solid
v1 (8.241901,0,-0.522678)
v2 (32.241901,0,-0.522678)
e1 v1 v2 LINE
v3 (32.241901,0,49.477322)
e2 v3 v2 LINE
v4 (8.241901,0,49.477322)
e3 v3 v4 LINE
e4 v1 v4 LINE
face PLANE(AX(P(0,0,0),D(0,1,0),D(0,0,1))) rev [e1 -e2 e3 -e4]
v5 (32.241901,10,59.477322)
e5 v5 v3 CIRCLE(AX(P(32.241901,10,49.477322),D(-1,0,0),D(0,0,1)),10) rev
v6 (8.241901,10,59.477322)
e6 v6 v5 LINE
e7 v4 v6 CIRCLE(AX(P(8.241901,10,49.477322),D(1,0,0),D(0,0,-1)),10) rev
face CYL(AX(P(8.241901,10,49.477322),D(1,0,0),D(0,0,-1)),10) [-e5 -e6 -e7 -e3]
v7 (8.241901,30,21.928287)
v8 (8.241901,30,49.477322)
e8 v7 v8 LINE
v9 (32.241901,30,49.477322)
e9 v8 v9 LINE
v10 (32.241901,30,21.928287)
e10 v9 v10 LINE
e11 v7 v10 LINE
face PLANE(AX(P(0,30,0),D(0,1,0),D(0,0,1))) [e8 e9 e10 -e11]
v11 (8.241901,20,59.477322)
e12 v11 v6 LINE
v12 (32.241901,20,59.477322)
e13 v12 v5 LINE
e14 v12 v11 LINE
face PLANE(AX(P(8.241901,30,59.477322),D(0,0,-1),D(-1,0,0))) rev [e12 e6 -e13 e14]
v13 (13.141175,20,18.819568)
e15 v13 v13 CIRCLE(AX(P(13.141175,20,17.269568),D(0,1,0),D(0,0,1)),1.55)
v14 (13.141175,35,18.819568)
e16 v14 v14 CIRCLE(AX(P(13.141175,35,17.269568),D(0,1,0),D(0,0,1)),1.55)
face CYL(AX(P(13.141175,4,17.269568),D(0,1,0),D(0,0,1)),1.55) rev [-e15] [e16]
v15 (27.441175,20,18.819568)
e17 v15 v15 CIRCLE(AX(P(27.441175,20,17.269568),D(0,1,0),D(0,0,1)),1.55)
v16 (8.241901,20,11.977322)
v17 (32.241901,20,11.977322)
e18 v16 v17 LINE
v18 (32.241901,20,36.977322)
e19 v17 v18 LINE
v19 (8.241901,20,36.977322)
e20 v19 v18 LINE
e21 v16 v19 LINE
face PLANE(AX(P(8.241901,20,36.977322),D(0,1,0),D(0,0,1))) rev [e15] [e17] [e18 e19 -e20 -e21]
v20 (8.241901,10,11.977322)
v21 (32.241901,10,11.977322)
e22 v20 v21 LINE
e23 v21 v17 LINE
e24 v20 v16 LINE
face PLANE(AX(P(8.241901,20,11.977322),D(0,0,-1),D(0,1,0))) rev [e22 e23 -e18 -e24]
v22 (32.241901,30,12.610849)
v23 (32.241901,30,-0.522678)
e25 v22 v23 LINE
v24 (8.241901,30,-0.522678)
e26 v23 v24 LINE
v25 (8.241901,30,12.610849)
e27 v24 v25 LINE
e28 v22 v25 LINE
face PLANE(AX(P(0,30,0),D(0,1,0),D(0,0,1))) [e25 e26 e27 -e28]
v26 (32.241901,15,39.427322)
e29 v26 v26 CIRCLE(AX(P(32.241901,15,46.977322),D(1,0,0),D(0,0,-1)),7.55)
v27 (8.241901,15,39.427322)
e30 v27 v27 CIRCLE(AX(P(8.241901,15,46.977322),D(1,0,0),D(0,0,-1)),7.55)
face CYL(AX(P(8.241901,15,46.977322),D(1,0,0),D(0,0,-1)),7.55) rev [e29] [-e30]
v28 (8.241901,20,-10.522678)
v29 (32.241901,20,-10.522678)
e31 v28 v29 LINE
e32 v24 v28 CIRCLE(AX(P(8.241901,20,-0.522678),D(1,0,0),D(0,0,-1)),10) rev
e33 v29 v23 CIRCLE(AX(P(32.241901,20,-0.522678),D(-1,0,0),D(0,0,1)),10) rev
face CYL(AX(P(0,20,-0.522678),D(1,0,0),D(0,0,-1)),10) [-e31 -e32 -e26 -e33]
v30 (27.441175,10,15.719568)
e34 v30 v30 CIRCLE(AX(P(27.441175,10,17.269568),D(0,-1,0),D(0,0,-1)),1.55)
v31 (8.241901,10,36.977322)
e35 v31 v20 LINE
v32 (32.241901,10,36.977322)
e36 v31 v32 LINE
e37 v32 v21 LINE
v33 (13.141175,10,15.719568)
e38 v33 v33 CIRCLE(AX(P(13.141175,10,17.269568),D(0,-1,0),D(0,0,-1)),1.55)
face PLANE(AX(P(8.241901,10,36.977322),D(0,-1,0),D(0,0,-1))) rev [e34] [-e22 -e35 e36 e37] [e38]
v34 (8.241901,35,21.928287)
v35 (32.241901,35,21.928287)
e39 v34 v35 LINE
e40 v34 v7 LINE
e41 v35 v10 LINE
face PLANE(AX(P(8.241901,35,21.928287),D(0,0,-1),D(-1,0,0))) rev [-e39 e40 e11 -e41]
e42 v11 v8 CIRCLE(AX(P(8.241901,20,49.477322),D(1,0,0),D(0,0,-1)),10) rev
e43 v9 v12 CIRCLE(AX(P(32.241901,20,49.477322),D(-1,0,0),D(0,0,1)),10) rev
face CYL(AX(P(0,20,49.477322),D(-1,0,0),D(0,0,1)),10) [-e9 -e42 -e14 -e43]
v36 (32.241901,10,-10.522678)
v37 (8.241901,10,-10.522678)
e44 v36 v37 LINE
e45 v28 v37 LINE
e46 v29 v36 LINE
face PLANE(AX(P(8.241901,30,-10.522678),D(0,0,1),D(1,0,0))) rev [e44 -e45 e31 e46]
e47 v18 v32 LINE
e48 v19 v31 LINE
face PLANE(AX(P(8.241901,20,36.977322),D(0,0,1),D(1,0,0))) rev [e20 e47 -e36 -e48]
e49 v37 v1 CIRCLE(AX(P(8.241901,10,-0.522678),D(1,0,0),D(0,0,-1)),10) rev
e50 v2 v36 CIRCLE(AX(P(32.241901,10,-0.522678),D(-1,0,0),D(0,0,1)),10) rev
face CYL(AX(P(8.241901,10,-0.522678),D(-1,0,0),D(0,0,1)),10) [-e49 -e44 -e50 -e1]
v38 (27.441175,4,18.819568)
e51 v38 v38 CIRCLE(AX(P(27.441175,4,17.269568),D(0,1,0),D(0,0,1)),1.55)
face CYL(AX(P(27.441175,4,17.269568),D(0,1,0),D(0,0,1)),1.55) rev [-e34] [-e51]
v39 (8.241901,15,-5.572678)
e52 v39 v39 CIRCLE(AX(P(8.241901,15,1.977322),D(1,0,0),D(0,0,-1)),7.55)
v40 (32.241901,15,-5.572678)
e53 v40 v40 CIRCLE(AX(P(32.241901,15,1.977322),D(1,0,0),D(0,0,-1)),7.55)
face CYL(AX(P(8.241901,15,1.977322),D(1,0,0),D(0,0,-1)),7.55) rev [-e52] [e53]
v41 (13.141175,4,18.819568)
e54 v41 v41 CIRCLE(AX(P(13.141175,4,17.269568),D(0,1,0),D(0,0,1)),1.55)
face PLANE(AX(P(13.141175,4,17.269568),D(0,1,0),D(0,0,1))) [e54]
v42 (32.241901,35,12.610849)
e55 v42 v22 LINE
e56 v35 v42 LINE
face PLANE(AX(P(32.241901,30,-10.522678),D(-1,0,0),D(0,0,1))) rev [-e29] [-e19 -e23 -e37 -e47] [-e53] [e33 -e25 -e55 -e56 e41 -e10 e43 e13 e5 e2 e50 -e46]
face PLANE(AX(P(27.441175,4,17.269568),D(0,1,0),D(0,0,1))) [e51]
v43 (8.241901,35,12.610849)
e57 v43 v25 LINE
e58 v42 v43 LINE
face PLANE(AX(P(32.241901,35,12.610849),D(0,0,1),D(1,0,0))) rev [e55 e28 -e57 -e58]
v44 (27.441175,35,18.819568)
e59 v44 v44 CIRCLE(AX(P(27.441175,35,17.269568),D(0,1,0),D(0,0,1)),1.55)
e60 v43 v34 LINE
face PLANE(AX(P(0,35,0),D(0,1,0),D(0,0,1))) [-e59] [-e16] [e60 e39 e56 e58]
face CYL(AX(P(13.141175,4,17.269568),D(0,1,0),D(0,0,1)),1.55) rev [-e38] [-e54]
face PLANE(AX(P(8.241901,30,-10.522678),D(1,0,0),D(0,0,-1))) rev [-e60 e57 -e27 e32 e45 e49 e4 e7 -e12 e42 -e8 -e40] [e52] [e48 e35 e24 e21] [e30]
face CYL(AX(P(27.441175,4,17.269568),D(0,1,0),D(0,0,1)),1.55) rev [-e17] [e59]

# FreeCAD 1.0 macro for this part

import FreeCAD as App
import Part
import Sketcher

V = App.Vector


def edges_at(feature, points):
    """Names of the edges that pass closest to the given points."""
    edges = feature.Shape.Edges
    near = lambda p: min(range(len(edges)), key=lambda i: edges[i].distToShape(Part.Vertex(*p))[0])
    return sorted({f"Edge{near(p) + 1}" for p in points})


def add_polygon(sketch, points):
    """Adds a closed chain of lines whose ends are joined by coincident constraints."""
    first, n = sketch.GeometryCount, len(points)
    for a, b in zip(points, points[1:] + points[:1]):
        sketch.addGeometry(Part.LineSegment(App.Vector(*a, 0), App.Vector(*b, 0)), False)
    for i in range(n):
        sketch.addConstraint(Sketcher.Constraint("Coincident", first + i, 2, first + (i + 1) % n, 1))

doc = App.newDocument("Part")
body = doc.addObject("PartDesign::Body", "Body")

# Sketch on XZ plane
sketch1 = body.newObject("Sketcher::SketchObject", "Sketch")
sketch1.AttachmentSupport = (doc.getObject("XZ_Plane"), [""])
sketch1.MapMode = "FlatFace"
add_polygon(sketch1, [(8, -11), (8, 59), (32, 59), (32, -11)])  # lines 0-3
sketch1.addConstraint(Sketcher.Constraint("Vertical", 0))
sketch1.addConstraint(Sketcher.Constraint("Horizontal", 1))
sketch1.addConstraint(Sketcher.Constraint("Vertical", 2))
sketch1.addConstraint(Sketcher.Constraint("Horizontal", 3))
sketch1.addConstraint(Sketcher.Constraint("DistanceX", 1, 1, 1, 2, 24.0))
sketch1.addConstraint(Sketcher.Constraint("DistanceY", 0, 1, 0, 2, 70.0))
sketch1.addConstraint(Sketcher.Constraint("DistanceX", -1, 1, 0, 2, 8.241901))
sketch1.addConstraint(Sketcher.Constraint("DistanceY", -1, 1, 0, 2, 59.477322))
pad1 = body.newObject("PartDesign::Pad", "Pad")
pad1.Profile = sketch1
pad1.Length = 30
pad1.Reversed = True

# Sketch on YZ plane
sketch2 = body.newObject("Sketcher::SketchObject", "Sketch001")
sketch2.AttachmentSupport = (doc.getObject("YZ_Plane"), [""])
sketch2.MapMode = "FlatFace"
sketch2.AttachmentOffset = App.Placement(V(0, 0, 32.241901), App.Rotation())
sketch2.addGeometry(Part.Circle(V(15, 47, 0), V(0, 0, 1), 8), False)
sketch2.addGeometry(Part.Circle(V(15, 2, 0), V(0, 0, 1), 8), False)
sketch2.addConstraint(Sketcher.Constraint("Equal", 0, 1))
sketch2.addConstraint(Sketcher.Constraint("Vertical", 0, 3, 1, 3))
sketch2.addConstraint(Sketcher.Constraint("Diameter", 0, 15.1))
sketch2.addConstraint(Sketcher.Constraint("DistanceX", -1, 1, 0, 3, 15.0))
sketch2.addConstraint(Sketcher.Constraint("DistanceY", 1, 3, 0, 3, 45.0))
sketch2.addConstraint(Sketcher.Constraint("DistanceY", -1, 1, 0, 3, 46.977322))
pocket1 = body.newObject("PartDesign::Pocket", "Pocket")
pocket1.Profile = sketch2
pocket1.Type = "ThroughAll"

# Sketch on YZ plane
sketch3 = body.newObject("Sketcher::SketchObject", "Sketch002")
sketch3.AttachmentSupport = (doc.getObject("YZ_Plane"), [""])
sketch3.MapMode = "FlatFace"
sketch3.AttachmentOffset = App.Placement(V(0, 0, 32.241901), App.Rotation())
add_polygon(sketch3, [(20, 37), (10, 37), (10, 12), (20, 12)])  # lines 0-3
sketch3.addConstraint(Sketcher.Constraint("Horizontal", 0))
sketch3.addConstraint(Sketcher.Constraint("Vertical", 1))
sketch3.addConstraint(Sketcher.Constraint("Horizontal", 2))
sketch3.addConstraint(Sketcher.Constraint("Vertical", 3))
sketch3.addConstraint(Sketcher.Constraint("DistanceX", 0, 2, 0, 1, 10.0))
sketch3.addConstraint(Sketcher.Constraint("DistanceY", 1, 2, 1, 1, 25.0))
sketch3.addConstraint(Sketcher.Constraint("DistanceX", -1, 1, 0, 2, 10.0))
sketch3.addConstraint(Sketcher.Constraint("DistanceY", -1, 1, 0, 2, 36.977322))
pocket2 = body.newObject("PartDesign::Pocket", "Pocket001")
pocket2.Profile = sketch3
pocket2.Type = "ThroughAll"

# Sketch on XZ plane
sketch4 = body.newObject("Sketcher::SketchObject", "Sketch003")
sketch4.AttachmentSupport = (doc.getObject("XZ_Plane"), [""])
sketch4.MapMode = "FlatFace"
sketch4.AttachmentOffset = App.Placement(V(0, 0, -30), App.Rotation())
add_polygon(sketch4, [(8, 13), (8, 22), (32, 22), (32, 13)])  # lines 0-3
sketch4.addConstraint(Sketcher.Constraint("Vertical", 0))
sketch4.addConstraint(Sketcher.Constraint("Horizontal", 1))
sketch4.addConstraint(Sketcher.Constraint("Vertical", 2))
sketch4.addConstraint(Sketcher.Constraint("Horizontal", 3))
sketch4.addConstraint(Sketcher.Constraint("DistanceX", 1, 1, 1, 2, 24.0))
sketch4.addConstraint(Sketcher.Constraint("DistanceY", 0, 1, 0, 2, 9.317438))
sketch4.addConstraint(Sketcher.Constraint("DistanceX", -1, 1, 0, 2, 8.241901))
sketch4.addConstraint(Sketcher.Constraint("DistanceY", -1, 1, 2, 2, 12.610849))
pad2 = body.newObject("PartDesign::Pad", "Pad001")
pad2.Profile = sketch4
pad2.Length = 5
pad2.Reversed = True

# Sketch on XZ plane
sketch5 = body.newObject("Sketcher::SketchObject", "Sketch004")
sketch5.AttachmentSupport = (doc.getObject("XZ_Plane"), [""])
sketch5.MapMode = "FlatFace"
sketch5.AttachmentOffset = App.Placement(V(0, 0, -35), App.Rotation())
sketch5.addGeometry(Part.Circle(V(27.4, 17.3, 0), V(0, 0, 1), 1.6), False)
sketch5.addGeometry(Part.Circle(V(13.1, 17.3, 0), V(0, 0, 1), 1.6), False)
sketch5.addConstraint(Sketcher.Constraint("Equal", 0, 1))
sketch5.addConstraint(Sketcher.Constraint("Horizontal", 0, 3, 1, 3))
sketch5.addConstraint(Sketcher.Constraint("Diameter", 0, 3.1))
sketch5.addConstraint(Sketcher.Constraint("DistanceX", 1, 3, 0, 3, 14.3))
sketch5.addConstraint(Sketcher.Constraint("DistanceX", -1, 1, 0, 3, 27.441175))
sketch5.addConstraint(Sketcher.Constraint("DistanceY", -1, 1, 0, 3, 17.269568))
pocket3 = body.newObject("PartDesign::Pocket", "Pocket002")
pocket3.Profile = sketch5
pocket3.Length = 31
pocket3.Reversed = True
doc.recompute()

fillet = body.newObject("PartDesign::Fillet", "Fillet")
fillet.Base = (pocket3, edges_at(pocket3, [
    (20.242, 30, -10.523),
    (20.242, 0, -10.523),
    (20.242, 0, 59.477),
    (20.242, 30, 59.477),
]))
fillet.Radius = 10

doc.recompute()
